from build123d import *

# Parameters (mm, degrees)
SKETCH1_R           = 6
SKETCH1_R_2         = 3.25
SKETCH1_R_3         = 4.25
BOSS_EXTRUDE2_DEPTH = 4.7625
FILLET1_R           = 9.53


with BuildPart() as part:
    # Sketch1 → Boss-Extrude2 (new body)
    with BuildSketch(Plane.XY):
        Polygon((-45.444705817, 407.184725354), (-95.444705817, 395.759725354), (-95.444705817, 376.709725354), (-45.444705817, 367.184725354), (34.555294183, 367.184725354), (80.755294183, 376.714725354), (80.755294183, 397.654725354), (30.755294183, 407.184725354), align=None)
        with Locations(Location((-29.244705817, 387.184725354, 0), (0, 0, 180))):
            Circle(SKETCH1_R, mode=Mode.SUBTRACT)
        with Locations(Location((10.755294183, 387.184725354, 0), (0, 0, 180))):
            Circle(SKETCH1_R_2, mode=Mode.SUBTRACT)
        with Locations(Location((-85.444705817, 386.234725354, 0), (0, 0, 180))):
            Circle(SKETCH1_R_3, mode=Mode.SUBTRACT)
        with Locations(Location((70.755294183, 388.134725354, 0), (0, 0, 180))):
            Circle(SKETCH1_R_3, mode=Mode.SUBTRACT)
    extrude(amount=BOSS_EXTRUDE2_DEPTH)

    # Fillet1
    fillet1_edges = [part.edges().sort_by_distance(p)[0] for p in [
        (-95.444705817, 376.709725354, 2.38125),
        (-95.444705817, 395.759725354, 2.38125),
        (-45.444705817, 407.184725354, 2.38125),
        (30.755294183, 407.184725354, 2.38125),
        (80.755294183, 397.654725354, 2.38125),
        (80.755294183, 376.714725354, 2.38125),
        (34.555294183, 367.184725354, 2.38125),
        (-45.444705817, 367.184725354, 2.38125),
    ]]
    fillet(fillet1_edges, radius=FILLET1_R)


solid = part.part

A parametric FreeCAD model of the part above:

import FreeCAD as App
import Part
import Sketcher

V = App.Vector
Q = App.Units.Quantity


def edges_at(feature, points):
    """Names of the edges that pass closest to the given points."""
    edges = feature.Shape.Edges
    near = lambda p: min(range(len(edges)), key=lambda i: edges[i].distToShape(Part.Vertex(*p))[0])
    return sorted({f"Edge{near(p) + 1}" for p in points})

doc = App.newDocument("Part")
body = doc.addObject("PartDesign::Body", "Body")

# Sketch on XY plane
sketch1 = doc.addObject("Sketcher::SketchObject", "Sketch")
body.addObject(sketch1)
sketch1.AttachmentSupport = (doc.XY_Plane, [""])
sketch1.MapMode = "FlatFace"
sketch1.addGeometry([
    Part.LineSegment(V(-45.444706, 407.184725, 0), V(-95.444706, 395.759725, 0)),  # 0
    Part.LineSegment(V(-95.444706, 395.759725, 0), V(-95.444706, 376.709725, 0)),  # 1
    Part.LineSegment(V(-95.444706, 376.709725, 0), V(-45.444706, 367.184725, 0)),  # 2
    Part.LineSegment(V(-45.444706, 367.184725, 0), V(34.555294, 367.184725, 0)),  # 3
    Part.LineSegment(V(34.555294, 367.184725, 0), V(80.755294, 376.714725, 0)),  # 4
    Part.LineSegment(V(80.755294, 376.714725, 0), V(80.755294, 397.654725, 0)),  # 5
    Part.LineSegment(V(80.755294, 397.654725, 0), V(30.755294, 407.184725, 0)),  # 6
    Part.LineSegment(V(30.755294, 407.184725, 0), V(-45.444706, 407.184725, 0)),  # 7
    Part.Circle(V(-85.444706, 386.234725, 0), V(0, 0, 1), 4.25),  # 8
    Part.Circle(V(-29.244706, 387.184725, 0), V(0, 0, 1), 6),  # 9
    Part.Circle(V(10.755294, 387.184725, 0), V(0, 0, 1), 3.25),  # 10
    Part.Circle(V(70.755294, 388.134725, 0), V(0, 0, 1), 4.25),  # 11
], False)
sketch1.addConstraint([
    Sketcher.Constraint("Coincident", 0, 2, 1, 1),
    Sketcher.Constraint("Coincident", 1, 2, 2, 1),
    Sketcher.Constraint("Coincident", 2, 2, 3, 1),
    Sketcher.Constraint("Coincident", 3, 2, 4, 1),
    Sketcher.Constraint("Coincident", 4, 2, 5, 1),
    Sketcher.Constraint("Coincident", 5, 2, 6, 1),
    Sketcher.Constraint("Coincident", 6, 2, 7, 1),
    Sketcher.Constraint("Coincident", 7, 2, 0, 1),
    Sketcher.Constraint("Vertical", 1),
    Sketcher.Constraint("Horizontal", 3),
    Sketcher.Constraint("Vertical", 5),
    Sketcher.Constraint("Horizontal", 7),
    Sketcher.Constraint("Equal", 8, 11),
    Sketcher.Constraint("Horizontal", 9, 3, 10, 3),
    Sketcher.Constraint("Vertical", 2, 2, 7, 2),
    Sketcher.Constraint("Diameter", 9, Q("12 mm")),
    Sketcher.Constraint("Diameter", 8, Q("8.5 mm")),
    Sketcher.Constraint("Diameter", 10, Q("6.5 mm")),
    Sketcher.Constraint("DistanceX", 3, 1, 3, 2, Q("80 mm")),
    Sketcher.Constraint("DistanceX", 7, 2, 7, 1, Q("76.2 mm")),
    Sketcher.Constraint("DistanceX", 9, 3, 10, 3, Q("40 mm")),
    Sketcher.Constraint("DistanceX", 10, 3, 11, 3, Q("60 mm")),
    Sketcher.Constraint("DistanceX", 0, 2, 8, 3, Q("10 mm")),
    Sketcher.Constraint("DistanceY", 2, 2, 9, 3, Q("20 mm")),
    Sketcher.Constraint("DistanceX", 8, 3, 2, 2, Q("40 mm")),
    Sketcher.Constraint("DistanceX", 11, 3, 4, 2, Q("10 mm")),
    Sketcher.Constraint("DistanceX", 10, 3, 6, 2, Q("20 mm")),
    Sketcher.Constraint("DistanceY", 10, 3, 6, 2, Q("20 mm")),
    Sketcher.Constraint("DistanceY", 1, 2, 1, 1, Q("19.05 mm")),
    Sketcher.Constraint("DistanceY", 5, 1, 5, 2, Q("20.94 mm")),
    Sketcher.Constraint("DistanceY", 8, 3, 11, 3, Q("1.9 mm")),
    Sketcher.Constraint("DistanceY", 8, 3, 9, 3, Q("0.95 mm")),
    Sketcher.Constraint("DistanceY", 4, 2, 11, 3, Q("11.42 mm")),
    Sketcher.Constraint("DistanceY", 8, 3, 0, 2, Q("9.525 mm")),
    Sketcher.Constraint("DistanceX", 8, 3, -1, 1, Q("85.444706 mm")),
    Sketcher.Constraint("DistanceY", -1, 1, 8, 3, Q("386.234725 mm")),
])
pad1 = doc.addObject("PartDesign::Pad", "Pad")
body.addObject(pad1)
pad1.Profile = sketch1
pad1.Length = 4.7625
doc.recompute()

fillet = doc.addObject("PartDesign::Fillet", "Fillet")
body.addObject(fillet)
fillet.Base = (pad1, edges_at(pad1, [
    (-95.445, 376.71, 2.381),
    (-95.445, 395.76, 2.381),
    (-45.445, 407.185, 2.381),
    (30.755, 407.185, 2.381),
    (80.755, 397.655, 2.381),
    (80.755, 376.715, 2.381),
    (34.555, 367.185, 2.381),
    (-45.445, 367.185, 2.381),
]))
fillet.Radius = 9.53

doc.recompute()
